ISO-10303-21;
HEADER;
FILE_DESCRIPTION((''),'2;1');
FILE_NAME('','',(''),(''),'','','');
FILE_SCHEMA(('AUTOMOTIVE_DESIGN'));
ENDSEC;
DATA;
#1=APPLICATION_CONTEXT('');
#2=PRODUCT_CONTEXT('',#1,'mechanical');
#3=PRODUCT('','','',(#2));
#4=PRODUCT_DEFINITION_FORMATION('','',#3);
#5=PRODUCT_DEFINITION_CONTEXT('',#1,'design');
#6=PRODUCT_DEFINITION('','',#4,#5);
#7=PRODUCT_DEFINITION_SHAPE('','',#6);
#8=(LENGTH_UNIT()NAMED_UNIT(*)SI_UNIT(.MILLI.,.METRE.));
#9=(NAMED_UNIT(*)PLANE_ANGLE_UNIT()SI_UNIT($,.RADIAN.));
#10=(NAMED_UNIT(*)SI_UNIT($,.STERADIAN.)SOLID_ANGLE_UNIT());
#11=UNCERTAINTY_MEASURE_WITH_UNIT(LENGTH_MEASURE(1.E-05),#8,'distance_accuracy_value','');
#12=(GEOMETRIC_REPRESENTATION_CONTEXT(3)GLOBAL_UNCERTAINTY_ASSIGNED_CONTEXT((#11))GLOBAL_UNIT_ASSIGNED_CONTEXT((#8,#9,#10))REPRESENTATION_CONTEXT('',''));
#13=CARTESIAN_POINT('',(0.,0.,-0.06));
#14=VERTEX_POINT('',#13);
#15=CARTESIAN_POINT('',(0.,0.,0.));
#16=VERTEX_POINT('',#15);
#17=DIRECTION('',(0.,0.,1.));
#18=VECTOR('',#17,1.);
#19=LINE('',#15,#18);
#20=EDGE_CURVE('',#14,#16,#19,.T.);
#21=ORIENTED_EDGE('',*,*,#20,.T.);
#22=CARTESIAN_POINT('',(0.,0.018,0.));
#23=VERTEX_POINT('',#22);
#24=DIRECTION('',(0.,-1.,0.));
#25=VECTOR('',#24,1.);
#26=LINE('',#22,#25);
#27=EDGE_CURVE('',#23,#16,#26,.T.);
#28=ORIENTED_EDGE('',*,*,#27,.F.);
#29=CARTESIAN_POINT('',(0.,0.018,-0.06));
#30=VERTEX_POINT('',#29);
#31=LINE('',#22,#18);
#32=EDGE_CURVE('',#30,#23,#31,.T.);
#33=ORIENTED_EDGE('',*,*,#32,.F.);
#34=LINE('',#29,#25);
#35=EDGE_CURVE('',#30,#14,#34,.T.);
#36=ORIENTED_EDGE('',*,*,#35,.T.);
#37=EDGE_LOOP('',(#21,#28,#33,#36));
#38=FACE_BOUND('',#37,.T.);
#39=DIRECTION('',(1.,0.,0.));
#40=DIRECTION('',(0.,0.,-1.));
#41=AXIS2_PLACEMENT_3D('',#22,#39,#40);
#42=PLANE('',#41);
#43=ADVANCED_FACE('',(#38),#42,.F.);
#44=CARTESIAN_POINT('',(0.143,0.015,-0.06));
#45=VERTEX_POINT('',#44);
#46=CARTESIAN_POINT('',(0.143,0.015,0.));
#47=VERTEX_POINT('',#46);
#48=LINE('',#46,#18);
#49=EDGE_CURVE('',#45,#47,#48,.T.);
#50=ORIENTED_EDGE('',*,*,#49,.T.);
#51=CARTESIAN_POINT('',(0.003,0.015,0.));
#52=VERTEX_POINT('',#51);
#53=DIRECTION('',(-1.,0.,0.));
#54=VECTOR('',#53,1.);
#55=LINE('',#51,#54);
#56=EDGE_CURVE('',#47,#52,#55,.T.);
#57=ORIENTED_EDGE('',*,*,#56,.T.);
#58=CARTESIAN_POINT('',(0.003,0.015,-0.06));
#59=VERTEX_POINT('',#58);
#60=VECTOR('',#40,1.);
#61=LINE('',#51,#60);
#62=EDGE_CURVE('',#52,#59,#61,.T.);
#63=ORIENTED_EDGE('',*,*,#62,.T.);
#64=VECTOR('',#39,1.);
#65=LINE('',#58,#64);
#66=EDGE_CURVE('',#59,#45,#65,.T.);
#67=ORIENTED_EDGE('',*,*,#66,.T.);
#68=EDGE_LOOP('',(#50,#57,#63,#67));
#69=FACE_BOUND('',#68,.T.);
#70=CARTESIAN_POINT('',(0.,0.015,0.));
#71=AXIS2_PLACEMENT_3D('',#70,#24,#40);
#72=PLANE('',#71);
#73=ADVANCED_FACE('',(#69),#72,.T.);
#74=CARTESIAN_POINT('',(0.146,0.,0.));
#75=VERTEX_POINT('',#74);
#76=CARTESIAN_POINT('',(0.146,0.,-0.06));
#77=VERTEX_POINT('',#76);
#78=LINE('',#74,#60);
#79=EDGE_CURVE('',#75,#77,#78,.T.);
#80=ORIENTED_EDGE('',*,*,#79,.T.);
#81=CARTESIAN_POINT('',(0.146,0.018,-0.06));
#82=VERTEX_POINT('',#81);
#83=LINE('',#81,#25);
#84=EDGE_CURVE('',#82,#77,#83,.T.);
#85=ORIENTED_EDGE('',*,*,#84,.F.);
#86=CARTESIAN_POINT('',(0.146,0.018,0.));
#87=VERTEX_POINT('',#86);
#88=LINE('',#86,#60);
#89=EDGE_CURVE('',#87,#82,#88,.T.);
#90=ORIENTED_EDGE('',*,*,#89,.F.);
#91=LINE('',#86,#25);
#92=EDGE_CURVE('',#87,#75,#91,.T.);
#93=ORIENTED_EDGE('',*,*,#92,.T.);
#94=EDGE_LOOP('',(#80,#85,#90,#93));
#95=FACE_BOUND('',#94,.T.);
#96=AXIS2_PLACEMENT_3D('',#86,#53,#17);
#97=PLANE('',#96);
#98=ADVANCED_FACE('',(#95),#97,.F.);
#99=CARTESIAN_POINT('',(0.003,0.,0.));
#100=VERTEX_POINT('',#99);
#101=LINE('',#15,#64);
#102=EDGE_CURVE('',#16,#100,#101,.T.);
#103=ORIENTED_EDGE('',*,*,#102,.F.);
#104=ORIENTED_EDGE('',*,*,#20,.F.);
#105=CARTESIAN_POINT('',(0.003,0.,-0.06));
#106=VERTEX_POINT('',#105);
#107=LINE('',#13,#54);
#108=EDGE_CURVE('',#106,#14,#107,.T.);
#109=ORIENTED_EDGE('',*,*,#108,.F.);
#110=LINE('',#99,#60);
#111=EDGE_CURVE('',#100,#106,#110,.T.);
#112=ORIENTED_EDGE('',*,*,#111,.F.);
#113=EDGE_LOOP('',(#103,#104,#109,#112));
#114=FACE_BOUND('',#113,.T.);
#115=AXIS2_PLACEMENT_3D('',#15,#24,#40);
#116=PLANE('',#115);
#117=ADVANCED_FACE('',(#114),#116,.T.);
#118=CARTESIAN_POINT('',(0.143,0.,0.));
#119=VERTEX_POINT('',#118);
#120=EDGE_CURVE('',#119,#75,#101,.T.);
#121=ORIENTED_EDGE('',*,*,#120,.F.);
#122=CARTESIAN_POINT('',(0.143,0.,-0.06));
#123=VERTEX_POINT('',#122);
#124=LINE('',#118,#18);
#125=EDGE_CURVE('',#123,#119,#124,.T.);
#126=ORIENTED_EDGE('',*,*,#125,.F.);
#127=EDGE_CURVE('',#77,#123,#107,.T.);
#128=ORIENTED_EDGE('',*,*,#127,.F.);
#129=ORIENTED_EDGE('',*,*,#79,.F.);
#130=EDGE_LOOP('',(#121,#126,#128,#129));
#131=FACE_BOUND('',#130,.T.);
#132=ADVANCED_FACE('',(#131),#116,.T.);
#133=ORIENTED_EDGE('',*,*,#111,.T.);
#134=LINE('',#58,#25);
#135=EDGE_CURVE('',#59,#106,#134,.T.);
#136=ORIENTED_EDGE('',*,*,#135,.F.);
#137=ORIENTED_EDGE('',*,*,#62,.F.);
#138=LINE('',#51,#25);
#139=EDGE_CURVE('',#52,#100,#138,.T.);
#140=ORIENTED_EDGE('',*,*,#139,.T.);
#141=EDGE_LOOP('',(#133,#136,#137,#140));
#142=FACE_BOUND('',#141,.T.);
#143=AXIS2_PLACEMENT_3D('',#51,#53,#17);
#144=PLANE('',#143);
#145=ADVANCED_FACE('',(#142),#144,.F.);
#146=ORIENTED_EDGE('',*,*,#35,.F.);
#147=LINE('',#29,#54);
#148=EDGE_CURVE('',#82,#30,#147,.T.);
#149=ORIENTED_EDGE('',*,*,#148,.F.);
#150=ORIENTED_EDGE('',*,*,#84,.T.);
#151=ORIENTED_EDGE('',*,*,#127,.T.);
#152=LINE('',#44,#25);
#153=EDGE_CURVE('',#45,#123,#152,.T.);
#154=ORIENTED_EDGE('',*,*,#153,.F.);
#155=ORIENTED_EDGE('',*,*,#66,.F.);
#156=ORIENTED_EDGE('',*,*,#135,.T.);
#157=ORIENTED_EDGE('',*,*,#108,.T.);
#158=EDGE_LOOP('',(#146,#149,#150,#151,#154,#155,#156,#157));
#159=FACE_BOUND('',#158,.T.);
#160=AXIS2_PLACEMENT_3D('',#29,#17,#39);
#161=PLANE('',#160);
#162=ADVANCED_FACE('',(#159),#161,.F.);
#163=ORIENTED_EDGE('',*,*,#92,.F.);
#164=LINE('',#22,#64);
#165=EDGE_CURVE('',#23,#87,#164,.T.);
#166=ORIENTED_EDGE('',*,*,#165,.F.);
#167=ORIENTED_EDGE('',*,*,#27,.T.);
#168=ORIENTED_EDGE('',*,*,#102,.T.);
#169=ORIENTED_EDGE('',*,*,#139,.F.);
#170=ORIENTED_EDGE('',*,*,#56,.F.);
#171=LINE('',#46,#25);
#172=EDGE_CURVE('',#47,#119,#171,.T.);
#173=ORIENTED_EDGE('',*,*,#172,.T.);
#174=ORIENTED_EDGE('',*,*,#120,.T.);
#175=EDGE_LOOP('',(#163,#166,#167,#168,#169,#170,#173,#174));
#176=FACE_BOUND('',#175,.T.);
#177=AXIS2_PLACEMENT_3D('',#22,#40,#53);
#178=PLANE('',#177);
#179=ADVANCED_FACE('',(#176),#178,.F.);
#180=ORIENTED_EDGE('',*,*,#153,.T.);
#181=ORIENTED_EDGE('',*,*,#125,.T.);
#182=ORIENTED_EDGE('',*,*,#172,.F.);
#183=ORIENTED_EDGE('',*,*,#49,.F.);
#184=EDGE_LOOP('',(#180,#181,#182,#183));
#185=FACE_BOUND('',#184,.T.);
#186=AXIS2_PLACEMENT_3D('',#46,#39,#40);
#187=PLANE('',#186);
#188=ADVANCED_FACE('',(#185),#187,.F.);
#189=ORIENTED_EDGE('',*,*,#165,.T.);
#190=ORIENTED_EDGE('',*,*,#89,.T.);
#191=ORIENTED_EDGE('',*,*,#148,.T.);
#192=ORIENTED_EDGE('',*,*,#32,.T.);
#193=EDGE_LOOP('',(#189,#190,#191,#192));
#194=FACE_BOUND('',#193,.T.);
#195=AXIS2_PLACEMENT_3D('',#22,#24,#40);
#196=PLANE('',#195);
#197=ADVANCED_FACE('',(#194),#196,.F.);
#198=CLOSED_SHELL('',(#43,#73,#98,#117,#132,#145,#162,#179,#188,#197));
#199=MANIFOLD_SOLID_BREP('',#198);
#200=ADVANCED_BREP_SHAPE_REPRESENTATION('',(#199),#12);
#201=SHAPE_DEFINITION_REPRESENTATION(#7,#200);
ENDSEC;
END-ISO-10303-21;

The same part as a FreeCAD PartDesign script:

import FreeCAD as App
import Part
import Sketcher

V = App.Vector
Q = App.Units.Quantity

doc = App.newDocument("Part")
body = doc.addObject("PartDesign::Body", "Body")

# Sketch on XZ plane
sketch1 = body.newObject("Sketcher::SketchObject", "Sketch")
sketch1.AttachmentSupport = (doc.getObject("XZ_Plane"), [""])
sketch1.MapMode = "FlatFace"
sketch1.addGeometry([
    Part.LineSegment(V(0, -0.06, 0), V(0, 0, 0)),
    Part.LineSegment(V(0, 0, 0), V(0.15, 0, 0)),
    Part.LineSegment(V(0.15, 0, 0), V(0.15, -0.06, 0)),
    Part.LineSegment(V(0.15, -0.06, 0), V(0, -0.06, 0)),
], False)
sketch1.addConstraint([
    Sketcher.Constraint("Coincident", 0, 2, 1, 1),
    Sketcher.Constraint("Coincident", 1, 2, 2, 1),
    Sketcher.Constraint("Coincident", 2, 2, 3, 1),
    Sketcher.Constraint("Coincident", 3, 2, 0, 1),
    Sketcher.Constraint("Vertical", 0),
    Sketcher.Constraint("Horizontal", 1),
    Sketcher.Constraint("Vertical", 2),
    Sketcher.Constraint("Horizontal", 3),
    Sketcher.Constraint("Coincident", 0, 2, -1, 1),
    Sketcher.Constraint("DistanceY", 0, 1, 0, 2, Q("0.06 mm")),
    Sketcher.Constraint("DistanceX", 1, 1, 1, 2, Q("0.146 mm")),
])
pad1 = body.newObject("PartDesign::Pad", "Pad")
pad1.Profile = sketch1
pad1.Length = 0.018
pad1.Reversed = True

# Sketch on XZ plane
sketch2 = body.newObject("Sketcher::SketchObject", "Sketch001")
sketch2.AttachmentSupport = (doc.getObject("XZ_Plane"), [""])
sketch2.MapMode = "FlatFace"
sketch2.addGeometry([
    Part.LineSegment(V(0, 0, 0), V(0, -0.06, 0)),
    Part.LineSegment(V(0, -0.06, 0), V(0.14, -0.06, 0)),
    Part.LineSegment(V(0.14, -0.06, 0), V(0.14, 0, 0)),
    Part.LineSegment(V(0.14, 0, 0), V(0, 0, 0)),
], False)
sketch2.addConstraint([
    Sketcher.Constraint("Coincident", 0, 2, 1, 1),
    Sketcher.Constraint("Coincident", 1, 2, 2, 1),
    Sketcher.Constraint("Coincident", 2, 2, 3, 1),
    Sketcher.Constraint("Coincident", 3, 2, 0, 1),
    Sketcher.Constraint("Vertical", 0),
    Sketcher.Constraint("Horizontal", 1),
    Sketcher.Constraint("Vertical", 2),
    Sketcher.Constraint("Horizontal", 3),
    Sketcher.Constraint("PointOnObject", 2, 2, -1),
    Sketcher.Constraint("DistanceX", 1, 1, 1, 2, Q("0.14 mm")),
    Sketcher.Constraint("DistanceY", 0, 2, 0, 1, Q("0.06 mm")),
    Sketcher.Constraint("DistanceX", -1, 1, 0, 2, Q("0.003 mm")),
])
pocket1 = body.newObject("PartDesign::Pocket", "Pocket")
pocket1.Profile = sketch2
pocket1.Length = 0.015

doc.recompute()
